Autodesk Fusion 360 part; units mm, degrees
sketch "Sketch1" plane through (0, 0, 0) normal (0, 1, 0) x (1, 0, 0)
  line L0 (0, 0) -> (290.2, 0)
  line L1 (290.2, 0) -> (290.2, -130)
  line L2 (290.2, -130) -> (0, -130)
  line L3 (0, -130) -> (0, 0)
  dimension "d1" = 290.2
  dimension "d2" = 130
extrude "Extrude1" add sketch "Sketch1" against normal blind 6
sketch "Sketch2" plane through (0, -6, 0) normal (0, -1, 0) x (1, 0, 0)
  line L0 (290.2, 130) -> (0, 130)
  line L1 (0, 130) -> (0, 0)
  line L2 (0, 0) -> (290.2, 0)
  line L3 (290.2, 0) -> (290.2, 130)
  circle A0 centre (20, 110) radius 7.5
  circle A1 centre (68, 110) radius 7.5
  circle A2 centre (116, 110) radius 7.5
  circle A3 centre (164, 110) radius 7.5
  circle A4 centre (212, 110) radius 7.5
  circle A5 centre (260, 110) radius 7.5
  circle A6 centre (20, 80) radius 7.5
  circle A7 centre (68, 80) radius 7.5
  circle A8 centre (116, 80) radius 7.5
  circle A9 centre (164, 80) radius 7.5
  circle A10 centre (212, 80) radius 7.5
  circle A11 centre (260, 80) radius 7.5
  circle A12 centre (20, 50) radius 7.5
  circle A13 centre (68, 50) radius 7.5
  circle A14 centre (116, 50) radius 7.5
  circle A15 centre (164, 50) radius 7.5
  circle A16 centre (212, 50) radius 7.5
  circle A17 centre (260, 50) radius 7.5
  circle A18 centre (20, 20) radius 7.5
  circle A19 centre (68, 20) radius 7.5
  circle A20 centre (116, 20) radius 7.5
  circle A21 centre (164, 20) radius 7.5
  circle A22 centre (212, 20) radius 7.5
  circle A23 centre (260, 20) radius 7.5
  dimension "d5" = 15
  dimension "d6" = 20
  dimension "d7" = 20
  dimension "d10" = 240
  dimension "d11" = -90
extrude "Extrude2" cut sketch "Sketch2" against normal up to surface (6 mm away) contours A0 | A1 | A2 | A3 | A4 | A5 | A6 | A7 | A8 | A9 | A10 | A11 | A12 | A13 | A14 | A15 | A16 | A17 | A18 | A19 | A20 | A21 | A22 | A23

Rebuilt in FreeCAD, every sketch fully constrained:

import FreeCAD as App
import Part
import Sketcher
from FreeCAD import Vector
Q = App.Units.Quantity

doc = App.newDocument("Part")
body = doc.addObject("PartDesign::Body", "Body")

# Sketch on XZ plane
sketch1 = body.newObject("Sketcher::SketchObject", "Sketch")
sketch1.AttachmentSupport = (doc.getObject("XZ_Plane"), [""])
sketch1.MapMode = "FlatFace"
sketch1.addGeometry(Part.LineSegment(Vector(290, 0, 0), Vector(0, 0, 0)), False)
sketch1.addGeometry(Part.LineSegment(Vector(0, 0, 0), Vector(0, 130, 0)), False)
sketch1.addGeometry(Part.LineSegment(Vector(0, 130, 0), Vector(290, 130, 0)), False)
sketch1.addGeometry(Part.LineSegment(Vector(290, 130, 0), Vector(290, 0, 0)), False)
sketch1.addConstraint(Sketcher.Constraint("Coincident", 0, 2, 1, 1))
sketch1.addConstraint(Sketcher.Constraint("Coincident", 1, 2, 2, 1))
sketch1.addConstraint(Sketcher.Constraint("Coincident", 2, 2, 3, 1))
sketch1.addConstraint(Sketcher.Constraint("Coincident", 3, 2, 0, 1))
sketch1.addConstraint(Sketcher.Constraint("Horizontal", 0))
sketch1.addConstraint(Sketcher.Constraint("Vertical", 1))
sketch1.addConstraint(Sketcher.Constraint("Horizontal", 2))
sketch1.addConstraint(Sketcher.Constraint("Vertical", 3))
sketch1.addConstraint(Sketcher.Constraint("Coincident", 0, 2, -1, 1))
sketch1.addConstraint(Sketcher.Constraint("DistanceY", 1, 1, 1, 2, Q("130 mm")))
sketch1.addConstraint(Sketcher.Constraint("DistanceX", 0, 2, 0, 1, Q("290.2 mm")))
pad1 = body.newObject("PartDesign::Pad", "Pad")
pad1.Profile = sketch1
pad1.Length = 6

# Sketch on XZ plane
sketch2 = body.newObject("Sketcher::SketchObject", "Sketch001")
sketch2.AttachmentSupport = (doc.getObject("XZ_Plane"), [""])
sketch2.MapMode = "FlatFace"
sketch2.AttachmentOffset = App.Placement(Vector(0, 0, 6), App.Rotation())
sketch2.addGeometry(Part.Circle(Vector(20, 110, 0), Vector(0, 0, 1), 8), False)
sketch2.addGeometry(Part.Circle(Vector(68, 110, 0), Vector(0, 0, 1), 8), False)
sketch2.addGeometry(Part.Circle(Vector(116, 110, 0), Vector(0, 0, 1), 8), False)
sketch2.addGeometry(Part.Circle(Vector(164, 110, 0), Vector(0, 0, 1), 8), False)
sketch2.addGeometry(Part.Circle(Vector(212, 110, 0), Vector(0, 0, 1), 8), False)
sketch2.addGeometry(Part.Circle(Vector(260, 110, 0), Vector(0, 0, 1), 8), False)
sketch2.addGeometry(Part.Circle(Vector(20, 80, 0), Vector(0, 0, 1), 8), False)
sketch2.addGeometry(Part.Circle(Vector(68, 80, 0), Vector(0, 0, 1), 8), False)
sketch2.addGeometry(Part.Circle(Vector(116, 80, 0), Vector(0, 0, 1), 8), False)
sketch2.addGeometry(Part.Circle(Vector(164, 80, 0), Vector(0, 0, 1), 8), False)
sketch2.addGeometry(Part.Circle(Vector(212, 80, 0), Vector(0, 0, 1), 8), False)
sketch2.addGeometry(Part.Circle(Vector(260, 80, 0), Vector(0, 0, 1), 8), False)
sketch2.addGeometry(Part.Circle(Vector(20, 50, 0), Vector(0, 0, 1), 8), False)
sketch2.addGeometry(Part.Circle(Vector(68, 50, 0), Vector(0, 0, 1), 8), False)
sketch2.addGeometry(Part.Circle(Vector(116, 50, 0), Vector(0, 0, 1), 8), False)
sketch2.addGeometry(Part.Circle(Vector(164, 50, 0), Vector(0, 0, 1), 8), False)
sketch2.addGeometry(Part.Circle(Vector(212, 50, 0), Vector(0, 0, 1), 8), False)
sketch2.addGeometry(Part.Circle(Vector(260, 50, 0), Vector(0, 0, 1), 8), False)
sketch2.addGeometry(Part.Circle(Vector(20, 20, 0), Vector(0, 0, 1), 8), False)
sketch2.addGeometry(Part.Circle(Vector(68, 20, 0), Vector(0, 0, 1), 8), False)
sketch2.addGeometry(Part.Circle(Vector(116, 20, 0), Vector(0, 0, 1), 8), False)
sketch2.addGeometry(Part.Circle(Vector(164, 20, 0), Vector(0, 0, 1), 8), False)
sketch2.addGeometry(Part.Circle(Vector(212, 20, 0), Vector(0, 0, 1), 8), False)
sketch2.addGeometry(Part.Circle(Vector(260, 20, 0), Vector(0, 0, 1), 8), False)
sketch2.addConstraint(Sketcher.Constraint("Equal", 0, 1))
sketch2.addConstraint(Sketcher.Constraint("Equal", 1, 2))
sketch2.addConstraint(Sketcher.Constraint("Equal", 2, 3))
sketch2.addConstraint(Sketcher.Constraint("Equal", 3, 4))
sketch2.addConstraint(Sketcher.Constraint("Equal", 4, 5))
sketch2.addConstraint(Sketcher.Constraint("Equal", 5, 6))
sketch2.addConstraint(Sketcher.Constraint("Equal", 6, 7))
sketch2.addConstraint(Sketcher.Constraint("Equal", 7, 8))
sketch2.addConstraint(Sketcher.Constraint("Equal", 8, 9))
sketch2.addConstraint(Sketcher.Constraint("Equal", 9, 10))
sketch2.addConstraint(Sketcher.Constraint("Equal", 10, 11))
sketch2.addConstraint(Sketcher.Constraint("Equal", 11, 12))
sketch2.addConstraint(Sketcher.Constraint("Equal", 12, 13))
sketch2.addConstraint(Sketcher.Constraint("Equal", 13, 14))
sketch2.addConstraint(Sketcher.Constraint("Equal", 14, 15))
sketch2.addConstraint(Sketcher.Constraint("Equal", 15, 16))
sketch2.addConstraint(Sketcher.Constraint("Equal", 16, 17))
sketch2.addConstraint(Sketcher.Constraint("Equal", 17, 18))
sketch2.addConstraint(Sketcher.Constraint("Equal", 18, 19))
sketch2.addConstraint(Sketcher.Constraint("Equal", 19, 20))
sketch2.addConstraint(Sketcher.Constraint("Equal", 20, 21))
sketch2.addConstraint(Sketcher.Constraint("Equal", 21, 22))
sketch2.addConstraint(Sketcher.Constraint("Equal", 22, 23))
sketch2.addConstraint(Sketcher.Constraint("Horizontal", 0, 3, 1, 3))
sketch2.addConstraint(Sketcher.Constraint("Horizontal", 1, 3, 2, 3))
sketch2.addConstraint(Sketcher.Constraint("Horizontal", 2, 3, 3, 3))
sketch2.addConstraint(Sketcher.Constraint("Horizontal", 3, 3, 4, 3))
sketch2.addConstraint(Sketcher.Constraint("Horizontal", 4, 3, 5, 3))
sketch2.addConstraint(Sketcher.Constraint("Horizontal", 6, 3, 7, 3))
sketch2.addConstraint(Sketcher.Constraint("Horizontal", 7, 3, 8, 3))
sketch2.addConstraint(Sketcher.Constraint("Horizontal", 8, 3, 9, 3))
sketch2.addConstraint(Sketcher.Constraint("Horizontal", 9, 3, 10, 3))
sketch2.addConstraint(Sketcher.Constraint("Horizontal", 10, 3, 11, 3))
sketch2.addConstraint(Sketcher.Constraint("Horizontal", 12, 3, 13, 3))
sketch2.addConstraint(Sketcher.Constraint("Horizontal", 13, 3, 14, 3))
sketch2.addConstraint(Sketcher.Constraint("Horizontal", 14, 3, 15, 3))
sketch2.addConstraint(Sketcher.Constraint("Horizontal", 15, 3, 16, 3))
sketch2.addConstraint(Sketcher.Constraint("Horizontal", 16, 3, 17, 3))
sketch2.addConstraint(Sketcher.Constraint("Horizontal", 18, 3, 19, 3))
sketch2.addConstraint(Sketcher.Constraint("Horizontal", 19, 3, 20, 3))
sketch2.addConstraint(Sketcher.Constraint("Horizontal", 20, 3, 21, 3))
sketch2.addConstraint(Sketcher.Constraint("Horizontal", 21, 3, 22, 3))
sketch2.addConstraint(Sketcher.Constraint("Horizontal", 22, 3, 23, 3))
sketch2.addConstraint(Sketcher.Constraint("Vertical", 0, 3, 6, 3))
sketch2.addConstraint(Sketcher.Constraint("Vertical", 1, 3, 7, 3))
sketch2.addConstraint(Sketcher.Constraint("Vertical", 2, 3, 8, 3))
sketch2.addConstraint(Sketcher.Constraint("Vertical", 3, 3, 9, 3))
sketch2.addConstraint(Sketcher.Constraint("Vertical", 4, 3, 10, 3))
sketch2.addConstraint(Sketcher.Constraint("Vertical", 5, 3, 11, 3))
sketch2.addConstraint(Sketcher.Constraint("Vertical", 6, 3, 12, 3))
sketch2.addConstraint(Sketcher.Constraint("Vertical", 7, 3, 13, 3))
sketch2.addConstraint(Sketcher.Constraint("Vertical", 8, 3, 14, 3))
sketch2.addConstraint(Sketcher.Constraint("Vertical", 9, 3, 15, 3))
sketch2.addConstraint(Sketcher.Constraint("Vertical", 10, 3, 16, 3))
sketch2.addConstraint(Sketcher.Constraint("Vertical", 11, 3, 17, 3))
sketch2.addConstraint(Sketcher.Constraint("Vertical", 12, 3, 18, 3))
sketch2.addConstraint(Sketcher.Constraint("Vertical", 13, 3, 19, 3))
sketch2.addConstraint(Sketcher.Constraint("Vertical", 14, 3, 20, 3))
sketch2.addConstraint(Sketcher.Constraint("Vertical", 15, 3, 21, 3))
sketch2.addConstraint(Sketcher.Constraint("Vertical", 16, 3, 22, 3))
sketch2.addConstraint(Sketcher.Constraint("Vertical", 17, 3, 23, 3))
sketch2.addConstraint(Sketcher.Constraint("Diameter", 0, Q("15 mm")))
sketch2.addConstraint(Sketcher.Constraint("DistanceX", -1, 1, 0, 3, Q("20 mm")))
sketch2.addConstraint(Sketcher.Constraint("DistanceY", -1, 1, 18, 3, Q("20 mm")))
sketch2.addConstraint(Sketcher.Constraint("DistanceX", 0, 3, 5, 3, Q("240 mm")))
sketch2.addConstraint(Sketcher.Constraint("DistanceY", 18, 3, 0, 3, Q("90 mm")))
sketch2.addConstraint(Sketcher.Constraint("DistanceX", -1, 1, 1, 3, Q("68 mm")))
sketch2.addConstraint(Sketcher.Constraint("DistanceX", -1, 1, 2, 3, Q("116 mm")))
sketch2.addConstraint(Sketcher.Constraint("DistanceX", -1, 1, 3, 3, Q("164 mm")))
sketch2.addConstraint(Sketcher.Constraint("DistanceX", -1, 1, 4, 3, Q("212 mm")))
sketch2.addConstraint(Sketcher.Constraint("DistanceY", -1, 1, 6, 3, Q("80 mm")))
sketch2.addConstraint(Sketcher.Constraint("DistanceY", -1, 1, 12, 3, Q("50 mm")))
pocket1 = body.newObject("PartDesign::Pocket", "Pocket")
pocket1.Profile = sketch2
pocket1.Length = 6

doc.recompute()
